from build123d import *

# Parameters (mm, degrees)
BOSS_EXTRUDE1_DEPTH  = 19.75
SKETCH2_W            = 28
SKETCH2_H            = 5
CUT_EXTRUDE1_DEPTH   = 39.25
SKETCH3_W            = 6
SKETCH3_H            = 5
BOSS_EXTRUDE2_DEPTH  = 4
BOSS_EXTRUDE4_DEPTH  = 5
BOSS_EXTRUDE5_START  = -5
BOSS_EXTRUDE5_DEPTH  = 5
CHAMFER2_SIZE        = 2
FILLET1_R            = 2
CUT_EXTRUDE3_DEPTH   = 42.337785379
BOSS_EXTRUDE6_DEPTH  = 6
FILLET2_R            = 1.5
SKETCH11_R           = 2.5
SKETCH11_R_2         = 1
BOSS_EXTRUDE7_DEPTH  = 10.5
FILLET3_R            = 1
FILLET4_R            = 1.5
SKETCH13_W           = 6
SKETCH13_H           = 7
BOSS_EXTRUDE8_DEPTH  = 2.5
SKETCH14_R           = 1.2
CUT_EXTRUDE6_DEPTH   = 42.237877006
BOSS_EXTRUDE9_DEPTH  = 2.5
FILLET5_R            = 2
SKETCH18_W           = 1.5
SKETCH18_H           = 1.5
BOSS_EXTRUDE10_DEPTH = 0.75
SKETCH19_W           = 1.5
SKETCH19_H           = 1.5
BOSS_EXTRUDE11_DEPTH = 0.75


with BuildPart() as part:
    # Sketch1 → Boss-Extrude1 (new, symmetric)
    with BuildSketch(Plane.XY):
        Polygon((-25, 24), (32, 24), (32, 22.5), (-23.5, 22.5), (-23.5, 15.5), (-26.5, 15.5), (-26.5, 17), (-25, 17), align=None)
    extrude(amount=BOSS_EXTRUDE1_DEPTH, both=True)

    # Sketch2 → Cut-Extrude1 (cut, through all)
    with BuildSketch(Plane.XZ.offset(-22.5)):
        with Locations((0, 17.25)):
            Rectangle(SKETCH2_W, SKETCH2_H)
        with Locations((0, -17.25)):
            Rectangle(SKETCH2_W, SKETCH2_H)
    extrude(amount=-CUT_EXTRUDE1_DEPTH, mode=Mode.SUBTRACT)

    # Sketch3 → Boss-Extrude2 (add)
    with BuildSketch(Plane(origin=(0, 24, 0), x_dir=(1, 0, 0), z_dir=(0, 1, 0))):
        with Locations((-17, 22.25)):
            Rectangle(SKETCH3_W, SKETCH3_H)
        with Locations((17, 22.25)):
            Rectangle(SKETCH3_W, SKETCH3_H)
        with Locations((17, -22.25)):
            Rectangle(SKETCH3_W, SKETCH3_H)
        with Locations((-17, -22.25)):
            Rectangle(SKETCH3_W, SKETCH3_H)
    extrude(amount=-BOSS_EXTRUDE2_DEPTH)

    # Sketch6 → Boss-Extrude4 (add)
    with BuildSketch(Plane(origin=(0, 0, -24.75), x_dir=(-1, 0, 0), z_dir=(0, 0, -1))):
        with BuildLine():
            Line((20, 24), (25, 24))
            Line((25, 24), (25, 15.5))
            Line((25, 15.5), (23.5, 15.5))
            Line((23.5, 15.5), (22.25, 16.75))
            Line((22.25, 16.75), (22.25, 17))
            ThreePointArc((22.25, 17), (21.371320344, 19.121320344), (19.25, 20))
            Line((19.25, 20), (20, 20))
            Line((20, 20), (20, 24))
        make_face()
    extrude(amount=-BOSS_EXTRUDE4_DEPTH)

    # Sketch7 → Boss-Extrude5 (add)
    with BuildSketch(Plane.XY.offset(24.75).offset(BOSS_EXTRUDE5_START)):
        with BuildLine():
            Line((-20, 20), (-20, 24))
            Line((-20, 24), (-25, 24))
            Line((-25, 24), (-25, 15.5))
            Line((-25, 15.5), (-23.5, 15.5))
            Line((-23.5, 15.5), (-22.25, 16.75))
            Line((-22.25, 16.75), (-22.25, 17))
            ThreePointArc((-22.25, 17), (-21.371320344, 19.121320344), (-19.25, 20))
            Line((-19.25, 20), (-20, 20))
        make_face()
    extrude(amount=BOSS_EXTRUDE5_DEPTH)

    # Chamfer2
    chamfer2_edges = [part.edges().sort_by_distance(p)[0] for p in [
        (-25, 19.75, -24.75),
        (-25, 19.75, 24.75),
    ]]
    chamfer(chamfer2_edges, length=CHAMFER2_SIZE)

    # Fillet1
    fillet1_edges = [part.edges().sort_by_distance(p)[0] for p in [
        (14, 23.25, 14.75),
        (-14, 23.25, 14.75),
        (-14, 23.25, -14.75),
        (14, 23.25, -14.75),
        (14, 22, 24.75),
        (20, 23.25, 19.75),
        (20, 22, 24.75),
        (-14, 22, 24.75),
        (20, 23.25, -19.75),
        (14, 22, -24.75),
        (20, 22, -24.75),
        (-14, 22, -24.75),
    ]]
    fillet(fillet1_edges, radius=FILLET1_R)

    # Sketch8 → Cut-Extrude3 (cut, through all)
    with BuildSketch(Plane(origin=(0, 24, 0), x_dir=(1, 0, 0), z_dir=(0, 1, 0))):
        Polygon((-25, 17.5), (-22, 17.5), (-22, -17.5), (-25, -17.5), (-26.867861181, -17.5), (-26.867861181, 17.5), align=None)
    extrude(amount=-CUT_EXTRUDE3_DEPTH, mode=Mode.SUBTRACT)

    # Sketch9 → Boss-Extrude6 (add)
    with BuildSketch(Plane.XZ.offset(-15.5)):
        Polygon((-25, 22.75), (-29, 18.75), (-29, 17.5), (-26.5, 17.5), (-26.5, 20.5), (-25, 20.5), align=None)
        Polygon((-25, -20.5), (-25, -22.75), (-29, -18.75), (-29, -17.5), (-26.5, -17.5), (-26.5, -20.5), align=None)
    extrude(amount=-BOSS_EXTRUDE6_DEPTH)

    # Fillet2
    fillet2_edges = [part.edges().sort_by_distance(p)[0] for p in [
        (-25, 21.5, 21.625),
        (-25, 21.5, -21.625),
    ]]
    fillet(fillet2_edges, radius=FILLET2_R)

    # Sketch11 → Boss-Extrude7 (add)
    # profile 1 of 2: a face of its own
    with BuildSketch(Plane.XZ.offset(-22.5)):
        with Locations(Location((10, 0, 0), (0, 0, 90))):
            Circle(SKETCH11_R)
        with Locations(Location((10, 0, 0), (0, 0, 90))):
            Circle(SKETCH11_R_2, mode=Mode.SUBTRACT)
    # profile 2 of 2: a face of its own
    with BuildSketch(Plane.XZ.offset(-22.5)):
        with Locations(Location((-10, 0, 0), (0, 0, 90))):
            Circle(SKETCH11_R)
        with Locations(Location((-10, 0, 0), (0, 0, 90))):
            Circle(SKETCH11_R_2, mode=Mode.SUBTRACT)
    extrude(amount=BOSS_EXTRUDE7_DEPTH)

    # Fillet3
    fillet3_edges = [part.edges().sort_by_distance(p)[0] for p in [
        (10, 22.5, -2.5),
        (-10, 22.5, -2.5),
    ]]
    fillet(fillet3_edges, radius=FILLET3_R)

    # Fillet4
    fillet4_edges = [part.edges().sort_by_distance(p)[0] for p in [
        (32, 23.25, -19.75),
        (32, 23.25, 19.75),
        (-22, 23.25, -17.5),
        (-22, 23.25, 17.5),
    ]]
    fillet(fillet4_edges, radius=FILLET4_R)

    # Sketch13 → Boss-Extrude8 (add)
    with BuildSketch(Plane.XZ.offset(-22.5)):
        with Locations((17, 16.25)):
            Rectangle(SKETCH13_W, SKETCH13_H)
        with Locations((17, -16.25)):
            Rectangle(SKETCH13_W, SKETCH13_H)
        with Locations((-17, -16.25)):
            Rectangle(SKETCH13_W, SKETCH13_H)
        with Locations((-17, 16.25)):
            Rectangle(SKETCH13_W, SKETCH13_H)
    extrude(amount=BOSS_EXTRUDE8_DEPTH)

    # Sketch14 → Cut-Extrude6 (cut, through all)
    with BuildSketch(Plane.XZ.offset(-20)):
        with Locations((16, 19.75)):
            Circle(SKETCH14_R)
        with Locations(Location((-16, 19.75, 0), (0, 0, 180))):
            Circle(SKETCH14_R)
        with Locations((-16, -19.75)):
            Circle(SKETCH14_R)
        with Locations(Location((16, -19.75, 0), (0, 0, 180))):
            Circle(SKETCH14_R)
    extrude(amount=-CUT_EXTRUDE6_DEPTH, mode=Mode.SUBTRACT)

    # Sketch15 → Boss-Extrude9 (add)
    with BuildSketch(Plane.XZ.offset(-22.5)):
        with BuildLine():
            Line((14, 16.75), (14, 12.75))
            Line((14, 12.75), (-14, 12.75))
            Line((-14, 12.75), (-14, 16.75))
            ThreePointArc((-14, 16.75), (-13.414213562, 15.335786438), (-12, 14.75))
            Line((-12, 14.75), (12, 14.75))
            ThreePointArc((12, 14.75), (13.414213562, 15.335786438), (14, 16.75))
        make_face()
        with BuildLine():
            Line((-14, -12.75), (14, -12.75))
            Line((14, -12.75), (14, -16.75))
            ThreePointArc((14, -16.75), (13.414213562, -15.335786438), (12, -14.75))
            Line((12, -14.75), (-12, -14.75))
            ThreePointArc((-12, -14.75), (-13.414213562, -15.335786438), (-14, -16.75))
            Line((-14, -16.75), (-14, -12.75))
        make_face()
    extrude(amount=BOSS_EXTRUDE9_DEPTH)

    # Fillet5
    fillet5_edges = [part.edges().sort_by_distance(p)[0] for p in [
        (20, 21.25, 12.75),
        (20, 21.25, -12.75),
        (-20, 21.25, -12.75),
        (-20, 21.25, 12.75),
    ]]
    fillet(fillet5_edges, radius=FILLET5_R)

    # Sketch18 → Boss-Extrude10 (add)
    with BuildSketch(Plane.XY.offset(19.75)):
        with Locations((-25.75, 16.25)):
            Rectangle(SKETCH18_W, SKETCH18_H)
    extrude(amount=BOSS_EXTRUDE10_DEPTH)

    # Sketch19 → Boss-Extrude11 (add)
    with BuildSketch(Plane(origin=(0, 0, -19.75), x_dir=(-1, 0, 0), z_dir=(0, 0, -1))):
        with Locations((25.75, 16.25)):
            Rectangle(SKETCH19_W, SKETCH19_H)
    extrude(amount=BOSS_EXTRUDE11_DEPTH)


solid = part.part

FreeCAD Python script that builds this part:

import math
import FreeCAD as App
import Part
import Sketcher
Q = App.Units.Quantity


def edges_at(feature, points):
    """Names of the edges that pass closest to the given points."""
    edges = feature.Shape.Edges
    near = lambda p: min(range(len(edges)), key=lambda i: edges[i].distToShape(Part.Vertex(*p))[0])
    return sorted({f"Edge{near(p) + 1}" for p in points})

doc = App.newDocument("Part")
params = doc.addObject("Spreadsheet::Sheet", "Params")
for row, (alias, value) in enumerate([
    ("sketch1_width", "57 mm"),
    ("sketch1_width2", "3 mm"),
    ("sketch1_height", "7 mm"),
    ("sketch1_width3", "1.5 mm"),
    ("pad1_length", "39.5 mm"),
    ("sketch2_width", "28 mm"),
    ("sketch2_height", "5 mm"),
    ("sketch3_width", "6 mm"),
    ("sketch3_height", "5 mm"),
    ("pad2_length", "4 mm"),
    ("sketch4_radius", "3 mm"),
    ("sketch4_width", "5 mm"),
    ("sketch4_height", "4 mm"),
    ("sketch4_width2", "1.5 mm"),
    ("sketch4_height2", "8.5 mm"),
    ("pad3_length", "5 mm"),
    ("sketch5_radius", "3 mm"),
    ("sketch5_width", "5 mm"),
    ("sketch5_height", "4 mm"),
    ("sketch5_width2", "1.5 mm"),
    ("sketch5_height2", "8.5 mm"),
    ("pad4_length", "5 mm"),
    ("chamfer_size", "2 mm"),
    ("fillet_radius", "2 mm"),
    ("sketch6_height", "35 mm"),
    ("sketch7_height", "3 mm"),
    ("sketch7_width", "2.5 mm"),
    ("sketch7_width2", "1.5 mm"),
    ("sketch7_height2", "1.25 mm"),
    ("pad5_length", "6 mm"),
    ("fillet2_radius", "1.5 mm"),
    ("sketch8_diameter", "5 mm"),
    ("sketch8_diameter2", "2 mm"),
    ("pad6_length", "10.5 mm"),
    ("fillet3_radius", "1 mm"),
    ("fillet4_radius", "1.5 mm"),
    ("sketch9_width", "6 mm"),
    ("sketch9_height", "7 mm"),
    ("pad7_length", "2.5 mm"),
    ("sketch10_diameter", "2.4 mm"),
    ("sketch11_radius", "2 mm"),
    ("sketch11_width", "24 mm"),
    ("sketch11_height", "4 mm"),
    ("pad8_length", "2.5 mm"),
    ("fillet5_radius", "2 mm"),
    ("sketch12_width", "1.5 mm"),
    ("pad9_length", "0.75 mm"),
    ("sketch13_width", "1.5 mm"),
    ("pad10_length", "0.75 mm"),
], start=1):
    params.set(f"A{row}", alias)
    params.set(f"B{row}", "=" + value)
    params.setAlias(f"B{row}", alias)

body = doc.addObject("PartDesign::Body", "Body")

sketch1 = body.newObject("Sketcher::SketchObject", "Sketch")
sketch1.AttachmentSupport = (doc.getObject("XY_Plane"), [""])
sketch1.MapMode = "FlatFace"
sketch1.addGeometry(Part.LineSegment(App.Vector(32, 24, 0), App.Vector(-25, 24, 0)), False)
sketch1.addGeometry(Part.LineSegment(App.Vector(-25, 24, 0), App.Vector(-25, 17, 0)), False)
sketch1.addGeometry(Part.LineSegment(App.Vector(-25, 17, 0), App.Vector(-26.5, 17, 0)), False)
sketch1.addGeometry(Part.LineSegment(App.Vector(-26.5, 17, 0), App.Vector(-26.5, 15.5, 0)), False)
sketch1.addGeometry(Part.LineSegment(App.Vector(-26.5, 15.5, 0), App.Vector(-23.5, 15.5, 0)), False)
sketch1.addGeometry(Part.LineSegment(App.Vector(-23.5, 15.5, 0), App.Vector(-23.5, 22.5, 0)), False)
sketch1.addGeometry(Part.LineSegment(App.Vector(-23.5, 22.5, 0), App.Vector(32, 22.5, 0)), False)
sketch1.addGeometry(Part.LineSegment(App.Vector(32, 22.5, 0), App.Vector(32, 24, 0)), False)
sketch1.addConstraint(Sketcher.Constraint("Coincident", 0, 2, 1, 1))
sketch1.addConstraint(Sketcher.Constraint("Coincident", 1, 2, 2, 1))
sketch1.addConstraint(Sketcher.Constraint("Coincident", 2, 2, 3, 1))
sketch1.addConstraint(Sketcher.Constraint("Coincident", 3, 2, 4, 1))
sketch1.addConstraint(Sketcher.Constraint("Coincident", 4, 2, 5, 1))
sketch1.addConstraint(Sketcher.Constraint("Coincident", 5, 2, 6, 1))
sketch1.addConstraint(Sketcher.Constraint("Coincident", 6, 2, 7, 1))
sketch1.addConstraint(Sketcher.Constraint("Coincident", 7, 2, 0, 1))
sketch1.addConstraint(Sketcher.Constraint("Horizontal", 0))
sketch1.addConstraint(Sketcher.Constraint("Vertical", 1))
sketch1.addConstraint(Sketcher.Constraint("Horizontal", 2))
sketch1.addConstraint(Sketcher.Constraint("Vertical", 3))
sketch1.addConstraint(Sketcher.Constraint("Horizontal", 4))
sketch1.addConstraint(Sketcher.Constraint("Vertical", 5))
sketch1.addConstraint(Sketcher.Constraint("Horizontal", 6))
sketch1.addConstraint(Sketcher.Constraint("Vertical", 7))
sketch1.addConstraint(Sketcher.Constraint("Equal", 2, 3))
sketch1.addConstraint(Sketcher.Constraint("Equal", 1, 5))
sketch1.addConstraint(Sketcher.Constraint("DistanceX", 0, 2, 0, 1, Q("57 mm")))
sketch1.addConstraint(Sketcher.Constraint("DistanceX", 4, 1, 4, 2, Q("3 mm")))
sketch1.addConstraint(Sketcher.Constraint("DistanceY", 1, 2, 1, 1, Q("7 mm")))
sketch1.addConstraint(Sketcher.Constraint("DistanceX", 2, 2, 2, 1, Q("1.5 mm")))
sketch1.addConstraint(Sketcher.Constraint("DistanceX", 0, 2, -1, 1, Q("25 mm")))
sketch1.addConstraint(Sketcher.Constraint("DistanceY", -1, 1, 0, 2, Q("24 mm")))
sketch1.setExpression("Constraints[18]", "Params.sketch1_width")
sketch1.setExpression("Constraints[19]", "Params.sketch1_width2")
sketch1.setExpression("Constraints[20]", "Params.sketch1_height")
sketch1.setExpression("Constraints[21]", "Params.sketch1_width3")
pad1 = body.newObject("PartDesign::Pad", "Pad")
pad1.Profile = sketch1
pad1.setExpression("Length", "Params.pad1_length")
pad1.Midplane = True

sketch2 = body.newObject("Sketcher::SketchObject", "Sketch001")
sketch2.AttachmentSupport = (doc.getObject("XZ_Plane"), [""])
sketch2.MapMode = "FlatFace"
sketch2.AttachmentOffset = App.Placement(App.Vector(0, 0, -22.5), App.Rotation())
sketch2.addGeometry(Part.LineSegment(App.Vector(-14, 19.75, 0), App.Vector(-14, 14.75, 0)), False)
sketch2.addGeometry(Part.LineSegment(App.Vector(-14, 14.75, 0), App.Vector(14, 14.75, 0)), False)
sketch2.addGeometry(Part.LineSegment(App.Vector(14, 14.75, 0), App.Vector(14, 19.75, 0)), False)
sketch2.addGeometry(Part.LineSegment(App.Vector(14, 19.75, 0), App.Vector(-14, 19.75, 0)), False)
sketch2.addGeometry(Part.LineSegment(App.Vector(-14, -14.75, 0), App.Vector(-14, -19.75, 0)), False)
sketch2.addGeometry(Part.LineSegment(App.Vector(-14, -19.75, 0), App.Vector(14, -19.75, 0)), False)
sketch2.addGeometry(Part.LineSegment(App.Vector(14, -19.75, 0), App.Vector(14, -14.75, 0)), False)
sketch2.addGeometry(Part.LineSegment(App.Vector(14, -14.75, 0), App.Vector(-14, -14.75, 0)), False)
sketch2.addConstraint(Sketcher.Constraint("Coincident", 0, 2, 1, 1))
sketch2.addConstraint(Sketcher.Constraint("Coincident", 1, 2, 2, 1))
sketch2.addConstraint(Sketcher.Constraint("Coincident", 2, 2, 3, 1))
sketch2.addConstraint(Sketcher.Constraint("Coincident", 3, 2, 0, 1))
sketch2.addConstraint(Sketcher.Constraint("Coincident", 4, 2, 5, 1))
sketch2.addConstraint(Sketcher.Constraint("Coincident", 5, 2, 6, 1))
sketch2.addConstraint(Sketcher.Constraint("Coincident", 6, 2, 7, 1))
sketch2.addConstraint(Sketcher.Constraint("Coincident", 7, 2, 4, 1))
sketch2.addConstraint(Sketcher.Constraint("Vertical", 0))
sketch2.addConstraint(Sketcher.Constraint("Horizontal", 1))
sketch2.addConstraint(Sketcher.Constraint("Vertical", 2))
sketch2.addConstraint(Sketcher.Constraint("Horizontal", 3))
sketch2.addConstraint(Sketcher.Constraint("Vertical", 4))
sketch2.addConstraint(Sketcher.Constraint("Horizontal", 5))
sketch2.addConstraint(Sketcher.Constraint("Vertical", 6))
sketch2.addConstraint(Sketcher.Constraint("Horizontal", 7))
sketch2.addConstraint(Sketcher.Constraint("Symmetric", 2, 2, 4, 2, -1, 1))
sketch2.addConstraint(Sketcher.Constraint("Symmetric", 0, 2, 6, 2, -1, 1))
sketch2.addConstraint(Sketcher.Constraint("Vertical", 3, 2, 4, 2))
sketch2.addConstraint(Sketcher.Constraint("DistanceX", 1, 1, 1, 2, Q("28 mm")))
sketch2.addConstraint(Sketcher.Constraint("DistanceY", 0, 2, 0, 1, Q("5 mm")))
sketch2.addConstraint(Sketcher.Constraint("DistanceY", 4, 2, 0, 2, Q("34.5 mm")))
sketch2.setExpression("Constraints[19]", "Params.sketch2_width")
sketch2.setExpression("Constraints[20]", "Params.sketch2_height")
pocket1 = body.newObject("PartDesign::Pocket", "Pocket")
pocket1.Profile = sketch2
pocket1.Type = "ThroughAll"

sketch3 = body.newObject("Sketcher::SketchObject", "Sketch002")
sketch3.AttachmentSupport = (doc.getObject("XZ_Plane"), [""])
sketch3.MapMode = "FlatFace"
sketch3.AttachmentOffset = App.Placement(App.Vector(0, 0, -24), App.Rotation())
sketch3.addGeometry(Part.LineSegment(App.Vector(-20, -24.75, 0), App.Vector(-20, -19.75, 0)), False)
sketch3.addGeometry(Part.LineSegment(App.Vector(-20, -19.75, 0), App.Vector(-14, -19.75, 0)), False)
sketch3.addGeometry(Part.LineSegment(App.Vector(-14, -19.75, 0), App.Vector(-14, -24.75, 0)), False)
sketch3.addGeometry(Part.LineSegment(App.Vector(-14, -24.75, 0), App.Vector(-20, -24.75, 0)), False)
sketch3.addGeometry(Part.LineSegment(App.Vector(14, -24.75, 0), App.Vector(14, -19.75, 0)), False)
sketch3.addGeometry(Part.LineSegment(App.Vector(14, -19.75, 0), App.Vector(20, -19.75, 0)), False)
sketch3.addGeometry(Part.LineSegment(App.Vector(20, -19.75, 0), App.Vector(20, -24.75, 0)), False)
sketch3.addGeometry(Part.LineSegment(App.Vector(20, -24.75, 0), App.Vector(14, -24.75, 0)), False)
sketch3.addGeometry(Part.LineSegment(App.Vector(14, 19.75, 0), App.Vector(14, 24.75, 0)), False)
sketch3.addGeometry(Part.LineSegment(App.Vector(14, 24.75, 0), App.Vector(20, 24.75, 0)), False)
sketch3.addGeometry(Part.LineSegment(App.Vector(20, 24.75, 0), App.Vector(20, 19.75, 0)), False)
sketch3.addGeometry(Part.LineSegment(App.Vector(20, 19.75, 0), App.Vector(14, 19.75, 0)), False)
sketch3.addGeometry(Part.LineSegment(App.Vector(-20, 19.75, 0), App.Vector(-20, 24.75, 0)), False)
sketch3.addGeometry(Part.LineSegment(App.Vector(-20, 24.75, 0), App.Vector(-14, 24.75, 0)), False)
sketch3.addGeometry(Part.LineSegment(App.Vector(-14, 24.75, 0), App.Vector(-14, 19.75, 0)), False)
sketch3.addGeometry(Part.LineSegment(App.Vector(-14, 19.75, 0), App.Vector(-20, 19.75, 0)), False)
sketch3.addConstraint(Sketcher.Constraint("Coincident", 0, 2, 1, 1))
sketch3.addConstraint(Sketcher.Constraint("Coincident", 1, 2, 2, 1))
sketch3.addConstraint(Sketcher.Constraint("Coincident", 2, 2, 3, 1))
sketch3.addConstraint(Sketcher.Constraint("Coincident", 3, 2, 0, 1))
sketch3.addConstraint(Sketcher.Constraint("Coincident", 4, 2, 5, 1))
sketch3.addConstraint(Sketcher.Constraint("Coincident", 5, 2, 6, 1))
sketch3.addConstraint(Sketcher.Constraint("Coincident", 6, 2, 7, 1))
sketch3.addConstraint(Sketcher.Constraint("Coincident", 7, 2, 4, 1))
sketch3.addConstraint(Sketcher.Constraint("Coincident", 8, 2, 9, 1))
sketch3.addConstraint(Sketcher.Constraint("Coincident", 9, 2, 10, 1))
sketch3.addConstraint(Sketcher.Constraint("Coincident", 10, 2, 11, 1))
sketch3.addConstraint(Sketcher.Constraint("Coincident", 11, 2, 8, 1))
sketch3.addConstraint(Sketcher.Constraint("Coincident", 12, 2, 13, 1))
sketch3.addConstraint(Sketcher.Constraint("Coincident", 13, 2, 14, 1))
sketch3.addConstraint(Sketcher.Constraint("Coincident", 14, 2, 15, 1))
sketch3.addConstraint(Sketcher.Constraint("Coincident", 15, 2, 12, 1))
sketch3.addConstraint(Sketcher.Constraint("Vertical", 0))
sketch3.addConstraint(Sketcher.Constraint("Horizontal", 1))
sketch3.addConstraint(Sketcher.Constraint("Vertical", 2))
sketch3.addConstraint(Sketcher.Constraint("Horizontal", 3))
sketch3.addConstraint(Sketcher.Constraint("Vertical", 4))
sketch3.addConstraint(Sketcher.Constraint("Horizontal", 5))
sketch3.addConstraint(Sketcher.Constraint("Vertical", 6))
sketch3.addConstraint(Sketcher.Constraint("Horizontal", 7))
sketch3.addConstraint(Sketcher.Constraint("Vertical", 8))
sketch3.addConstraint(Sketcher.Constraint("Horizontal", 9))
sketch3.addConstraint(Sketcher.Constraint("Vertical", 10))
sketch3.addConstraint(Sketcher.Constraint("Horizontal", 11))
sketch3.addConstraint(Sketcher.Constraint("Vertical", 12))
sketch3.addConstraint(Sketcher.Constraint("Horizontal", 13))
sketch3.addConstraint(Sketcher.Constraint("Vertical", 14))
sketch3.addConstraint(Sketcher.Constraint("Horizontal", 15))
sketch3.addConstraint(Sketcher.Constraint("Symmetric", 2, 2, 8, 2, -1, 1))
sketch3.addConstraint(Sketcher.Constraint("Symmetric", 0, 2, 10, 2, -1, 1))
sketch3.addConstraint(Sketcher.Constraint("Symmetric", 6, 2, 12, 2, -1, 1))
sketch3.addConstraint(Sketcher.Constraint("Symmetric", 4, 2, 14, 2, -1, 1))
sketch3.addConstraint(Sketcher.Constraint("Symmetric", 1, 2, 4, 2, -2))
sketch3.addConstraint(Sketcher.Constraint("Symmetric", 3, 2, 6, 2, -2))
sketch3.addConstraint(Sketcher.Constraint("DistanceX", 1, 1, 1, 2, Q("6 mm")))
sketch3.addConstraint(Sketcher.Constraint("DistanceY", 0, 1, 0, 2, Q("5 mm")))
sketch3.addConstraint(Sketcher.Constraint("DistanceX", 0, 2, -1, 1, Q("20 mm")))
sketch3.addConstraint(Sketcher.Constraint("DistanceY", 4, 2, 8, 2, Q("44.5 mm")))
sketch3.setExpression("Constraints[38]", "Params.sketch3_width")
sketch3.setExpression("Constraints[39]", "Params.sketch3_height")
pad2 = body.newObject("PartDesign::Pad", "Pad001")
pad2.Profile = sketch3
pad2.setExpression("Length", "Params.pad2_length")

sketch4 = body.newObject("Sketcher::SketchObject", "Sketch003")
sketch4.AttachmentSupport = (doc.getObject("XY_Plane"), [""])
sketch4.MapMode = "FlatFace"
sketch4.AttachmentOffset = App.Placement(App.Vector(0, 0, -24.75), App.Rotation())
sketch4.addGeometry(Part.LineSegment(App.Vector(-25, 24, 0), App.Vector(-20, 24, 0)), False)
sketch4.addGeometry(Part.LineSegment(App.Vector(-20, 24, 0), App.Vector(-20, 20, 0)), False)
sketch4.addGeometry(Part.LineSegment(App.Vector(-20, 20, 0), App.Vector(-19.25, 20, 0)), False)
sketch4.addGeometry(Part.ArcOfCircle(Part.Circle(App.Vector(-19.25, 17, 0), App.Vector(0, 0, 1), 3), math.radians(90), math.radians(180)), False)
sketch4.addGeometry(Part.LineSegment(App.Vector(-22.25, 17, 0), App.Vector(-22.25, 16.75, 0)), False)
sketch4.addGeometry(Part.LineSegment(App.Vector(-22.25, 16.75, 0), App.Vector(-23.5, 15.5, 0)), False)
sketch4.addGeometry(Part.LineSegment(App.Vector(-23.5, 15.5, 0), App.Vector(-25, 15.5, 0)), False)
sketch4.addGeometry(Part.LineSegment(App.Vector(-25, 15.5, 0), App.Vector(-25, 24, 0)), False)
sketch4.addConstraint(Sketcher.Constraint("Coincident", 0, 2, 1, 1))
sketch4.addConstraint(Sketcher.Constraint("Coincident", 1, 2, 2, 1))
sketch4.addConstraint(Sketcher.Constraint("Tangent", 2, 2, 3, 1))
sketch4.addConstraint(Sketcher.Constraint("Tangent", 3, 2, 4, 1))
sketch4.addConstraint(Sketcher.Constraint("Coincident", 4, 2, 5, 1))
sketch4.addConstraint(Sketcher.Constraint("Coincident", 5, 2, 6, 1))
sketch4.addConstraint(Sketcher.Constraint("Coincident", 6, 2, 7, 1))
sketch4.addConstraint(Sketcher.Constraint("Coincident", 7, 2, 0, 1))
sketch4.addConstraint(Sketcher.Constraint("Horizontal", 0))
sketch4.addConstraint(Sketcher.Constraint("Vertical", 1))
sketch4.addConstraint(Sketcher.Constraint("Horizontal", 2))
sketch4.addConstraint(Sketcher.Constraint("Vertical", 4))
sketch4.addConstraint(Sketcher.Constraint("Horizontal", 6))
sketch4.addConstraint(Sketcher.Constraint("Vertical", 7))
sketch4.addConstraint(Sketcher.Constraint("Radius", 3, Q("3 mm")))
sketch4.addConstraint(Sketcher.Constraint("DistanceX", 0, 1, 0, 2, Q("5 mm")))
sketch4.addConstraint(Sketcher.Constraint("DistanceY", 1, 2, 1, 1, Q("4 mm")))
sketch4.addConstraint(Sketcher.Constraint("Angle", 5, Q("-135 deg")))
sketch4.addConstraint(Sketcher.Constraint("DistanceX", 6, 2, 6, 1, Q("1.5 mm")))
sketch4.addConstraint(Sketcher.Constraint("DistanceY", 7, 1, 7, 2, Q("8.5 mm")))
sketch4.addConstraint(Sketcher.Constraint("DistanceY", -1, 1, 3, 3, Q("17 mm")))
sketch4.addConstraint(Sketcher.Constraint("DistanceX", 0, 2, -1, 1, Q("20 mm")))
sketch4.addConstraint(Sketcher.Constraint("DistanceX", 2, 1, 2, 2, Q("0.75 mm")))
sketch4.setExpression("Constraints[14]", "Params.sketch4_radius")
sketch4.setExpression("Constraints[15]", "Params.sketch4_width")
sketch4.setExpression("Constraints[16]", "Params.sketch4_height")
sketch4.setExpression("Constraints[18]", "Params.sketch4_width2")
sketch4.setExpression("Constraints[19]", "Params.sketch4_height2")
pad3 = body.newObject("PartDesign::Pad", "Pad002")
pad3.Profile = sketch4
pad3.setExpression("Length", "Params.pad3_length")

sketch5 = body.newObject("Sketcher::SketchObject", "Sketch004")
sketch5.AttachmentSupport = (doc.getObject("XY_Plane"), [""])
sketch5.MapMode = "FlatFace"
sketch5.AttachmentOffset = App.Placement(App.Vector(0, 0, 19.75), App.Rotation())
sketch5.addGeometry(Part.LineSegment(App.Vector(-20, 20, 0), App.Vector(-20, 24, 0)), False)
sketch5.addGeometry(Part.LineSegment(App.Vector(-20, 24, 0), App.Vector(-25, 24, 0)), False)
sketch5.addGeometry(Part.LineSegment(App.Vector(-25, 24, 0), App.Vector(-25, 15.5, 0)), False)
sketch5.addGeometry(Part.LineSegment(App.Vector(-25, 15.5, 0), App.Vector(-23.5, 15.5, 0)), False)
sketch5.addGeometry(Part.LineSegment(App.Vector(-23.5, 15.5, 0), App.Vector(-22.25, 16.75, 0)), False)
sketch5.addGeometry(Part.LineSegment(App.Vector(-22.25, 16.75, 0), App.Vector(-22.25, 17, 0)), False)
sketch5.addGeometry(Part.ArcOfCircle(Part.Circle(App.Vector(-19.25, 17, 0), App.Vector(0, 0, 1), 3), math.radians(90), math.radians(180)), False)
sketch5.addGeometry(Part.LineSegment(App.Vector(-19.25, 20, 0), App.Vector(-20, 20, 0)), False)
sketch5.addConstraint(Sketcher.Constraint("Coincident", 0, 2, 1, 1))
sketch5.addConstraint(Sketcher.Constraint("Coincident", 1, 2, 2, 1))
sketch5.addConstraint(Sketcher.Constraint("Coincident", 2, 2, 3, 1))
sketch5.addConstraint(Sketcher.Constraint("Coincident", 3, 2, 4, 1))
sketch5.addConstraint(Sketcher.Constraint("Coincident", 4, 2, 5, 1))
sketch5.addConstraint(Sketcher.Constraint("Tangent", 5, 2, 6, 2))
sketch5.addConstraint(Sketcher.Constraint("Tangent", 6, 1, 7, 1))
sketch5.addConstraint(Sketcher.Constraint("Coincident", 7, 2, 0, 1))
sketch5.addConstraint(Sketcher.Constraint("Vertical", 0))
sketch5.addConstraint(Sketcher.Constraint("Horizontal", 1))
sketch5.addConstraint(Sketcher.Constraint("Vertical", 2))
sketch5.addConstraint(Sketcher.Constraint("Horizontal", 3))
sketch5.addConstraint(Sketcher.Constraint("Vertical", 5))
sketch5.addConstraint(Sketcher.Constraint("Horizontal", 7))
sketch5.addConstraint(Sketcher.Constraint("Radius", 6, Q("3 mm")))
sketch5.addConstraint(Sketcher.Constraint("DistanceX", 1, 2, 1, 1, Q("5 mm")))
sketch5.addConstraint(Sketcher.Constraint("DistanceY", 0, 1, 0, 2, Q("4 mm")))
sketch5.addConstraint(Sketcher.Constraint("Angle", 4, Q("45 deg")))
sketch5.addConstraint(Sketcher.Constraint("DistanceX", 3, 1, 3, 2, Q("1.5 mm")))
sketch5.addConstraint(Sketcher.Constraint("DistanceY", 2, 2, 2, 1, Q("8.5 mm")))
sketch5.addConstraint(Sketcher.Constraint("DistanceY", -1, 1, 6, 3, Q("17 mm")))
sketch5.addConstraint(Sketcher.Constraint("DistanceX", 0, 2, -1, 1, Q("20 mm")))
sketch5.addConstraint(Sketcher.Constraint("DistanceX", 7, 2, 7, 1, Q("0.75 mm")))
sketch5.setExpression("Constraints[14]", "Params.sketch5_radius")
sketch5.setExpression("Constraints[15]", "Params.sketch5_width")
sketch5.setExpression("Constraints[16]", "Params.sketch5_height")
sketch5.setExpression("Constraints[18]", "Params.sketch5_width2")
sketch5.setExpression("Constraints[19]", "Params.sketch5_height2")
pad4 = body.newObject("PartDesign::Pad", "Pad003")
pad4.Profile = sketch5
pad4.setExpression("Length", "Params.pad4_length")
doc.recompute()

chamfer = body.newObject("PartDesign::Chamfer", "Chamfer")
chamfer.Base = (pad4, edges_at(pad4, [(-25, 19.75, -24.75), (-25, 19.75, 24.75)]))
chamfer.setExpression("Size", "Params.chamfer_size")
doc.recompute()

fillet = body.newObject("PartDesign::Fillet", "Fillet")
fillet.Base = (chamfer, edges_at(chamfer, [
    (14, 23.25, 14.75),
    (-14, 23.25, 14.75),
    (-14, 23.25, -14.75),
    (14, 23.25, -14.75),
    (14, 22, 24.75),
    (20, 23.25, 19.75),
    (20, 22, 24.75),
    (-14, 22, 24.75),
    (20, 23.25, -19.75),
    (14, 22, -24.75),
    (20, 22, -24.75),
    (-14, 22, -24.75),
]))
fillet.setExpression("Radius", "Params.fillet_radius")

sketch6 = body.newObject("Sketcher::SketchObject", "Sketch005")
sketch6.AttachmentSupport = (doc.getObject("XZ_Plane"), [""])
sketch6.MapMode = "FlatFace"
sketch6.AttachmentOffset = App.Placement(App.Vector(0, 0, -24), App.Rotation())
sketch6.addGeometry(Part.LineSegment(App.Vector(-22, -17.5, 0), App.Vector(-26.867861, -17.5, 0)), False)
sketch6.addGeometry(Part.LineSegment(App.Vector(-26.867861, -17.5, 0), App.Vector(-26.867861, 17.5, 0)), False)
sketch6.addGeometry(Part.LineSegment(App.Vector(-26.867861, 17.5, 0), App.Vector(-22, 17.5, 0)), False)
sketch6.addGeometry(Part.LineSegment(App.Vector(-22, 17.5, 0), App.Vector(-22, -17.5, 0)), False)
sketch6.addConstraint(Sketcher.Constraint("Coincident", 0, 2, 1, 1))
sketch6.addConstraint(Sketcher.Constraint("Coincident", 1, 2, 2, 1))
sketch6.addConstraint(Sketcher.Constraint("Coincident", 2, 2, 3, 1))
sketch6.addConstraint(Sketcher.Constraint("Coincident", 3, 2, 0, 1))
sketch6.addConstraint(Sketcher.Constraint("Horizontal", 0))
sketch6.addConstraint(Sketcher.Constraint("Vertical", 1))
sketch6.addConstraint(Sketcher.Constraint("Horizontal", 2))
sketch6.addConstraint(Sketcher.Constraint("Vertical", 3))
sketch6.addConstraint(Sketcher.Constraint("DistanceY", 1, 1, 1, 2, Q("35 mm")))
sketch6.addConstraint(Sketcher.Constraint("DistanceX", 2, 2, -1, 1, Q("22 mm")))
sketch6.addConstraint(Sketcher.Constraint("DistanceY", 0, 2, -1, 1, Q("17.5 mm")))
sketch6.addConstraint(Sketcher.Constraint("DistanceX", 0, 2, 0, 1, Q("4.867861 mm")))
sketch6.setExpression("Constraints[8]", "Params.sketch6_height")
pocket2 = body.newObject("PartDesign::Pocket", "Pocket001")
pocket2.Profile = sketch6
pocket2.Type = "ThroughAll"
pocket2.Reversed = True

sketch7 = body.newObject("Sketcher::SketchObject", "Sketch006")
sketch7.AttachmentSupport = (doc.getObject("XZ_Plane"), [""])
sketch7.MapMode = "FlatFace"
sketch7.AttachmentOffset = App.Placement(App.Vector(0, 0, -15.5), App.Rotation())
sketch7.addGeometry(Part.LineSegment(App.Vector(-25, 22.75, 0), App.Vector(-29, 18.75, 0)), False)
sketch7.addGeometry(Part.LineSegment(App.Vector(-29, 18.75, 0), App.Vector(-29, 17.5, 0)), False)
sketch7.addGeometry(Part.LineSegment(App.Vector(-29, 17.5, 0), App.Vector(-26.5, 17.5, 0)), False)
sketch7.addGeometry(Part.LineSegment(App.Vector(-26.5, 17.5, 0), App.Vector(-26.5, 20.5, 0)), False)
sketch7.addGeometry(Part.LineSegment(App.Vector(-26.5, 20.5, 0), App.Vector(-25, 20.5, 0)), False)
sketch7.addGeometry(Part.LineSegment(App.Vector(-25, 20.5, 0), App.Vector(-25, 22.75, 0)), False)
sketch7.addGeometry(Part.LineSegment(App.Vector(-25, -22.75, 0), App.Vector(-25, -20.5, 0)), False)
sketch7.addGeometry(Part.LineSegment(App.Vector(-25, -20.5, 0), App.Vector(-26.5, -20.5, 0)), False)
sketch7.addGeometry(Part.LineSegment(App.Vector(-26.5, -20.5, 0), App.Vector(-26.5, -17.5, 0)), False)
sketch7.addGeometry(Part.LineSegment(App.Vector(-26.5, -17.5, 0), App.Vector(-29, -17.5, 0)), False)
sketch7.addGeometry(Part.LineSegment(App.Vector(-29, -17.5, 0), App.Vector(-29, -18.75, 0)), False)
sketch7.addGeometry(Part.LineSegment(App.Vector(-29, -18.75, 0), App.Vector(-25, -22.75, 0)), False)
sketch7.addConstraint(Sketcher.Constraint("Coincident", 0, 2, 1, 1))
sketch7.addConstraint(Sketcher.Constraint("Coincident", 1, 2, 2, 1))
sketch7.addConstraint(Sketcher.Constraint("Coincident", 2, 2, 3, 1))
sketch7.addConstraint(Sketcher.Constraint("Coincident", 3, 2, 4, 1))
sketch7.addConstraint(Sketcher.Constraint("Coincident", 4, 2, 5, 1))
sketch7.addConstraint(Sketcher.Constraint("Coincident", 5, 2, 0, 1))
sketch7.addConstraint(Sketcher.Constraint("Coincident", 6, 2, 7, 1))
sketch7.addConstraint(Sketcher.Constraint("Coincident", 7, 2, 8, 1))
sketch7.addConstraint(Sketcher.Constraint("Coincident", 8, 2, 9, 1))
sketch7.addConstraint(Sketcher.Constraint("Coincident", 9, 2, 10, 1))
sketch7.addConstraint(Sketcher.Constraint("Coincident", 10, 2, 11, 1))
sketch7.addConstraint(Sketcher.Constraint("Coincident", 11, 2, 6, 1))
sketch7.addConstraint(Sketcher.Constraint("Vertical", 1))
sketch7.addConstraint(Sketcher.Constraint("Horizontal", 2))
sketch7.addConstraint(Sketcher.Constraint("Vertical", 3))
sketch7.addConstraint(Sketcher.Constraint("Horizontal", 4))
sketch7.addConstraint(Sketcher.Constraint("Vertical", 5))
sketch7.addConstraint(Sketcher.Constraint("Vertical", 6))
sketch7.addConstraint(Sketcher.Constraint("Horizontal", 7))
sketch7.addConstraint(Sketcher.Constraint("Vertical", 8))
sketch7.addConstraint(Sketcher.Constraint("Horizontal", 9))
sketch7.addConstraint(Sketcher.Constraint("Vertical", 10))
sketch7.addConstraint(Sketcher.Constraint("Symmetric", 4, 2, 6, 2, -1))
sketch7.addConstraint(Sketcher.Constraint("Symmetric", 2, 2, 8, 2, -1))
sketch7.addConstraint(Sketcher.Constraint("Symmetric", 0, 2, 10, 2, -1))
sketch7.addConstraint(Sketcher.Constraint("Perpendicular", 0, 11))
sketch7.addConstraint(Sketcher.Constraint("Equal", 5, 6))
sketch7.addConstraint(Sketcher.Constraint("DistanceY", 3, 1, 3, 2, Q("3 mm")))
sketch7.addConstraint(Sketcher.Constraint("DistanceX", 2, 1, 2, 2, Q("2.5 mm")))
sketch7.addConstraint(Sketcher.Constraint("DistanceX", 4, 1, 4, 2, Q("1.5 mm")))
sketch7.addConstraint(Sketcher.Constraint("DistanceX", 0, 2, -1, 1, Q("29 mm")))
sketch7.addConstraint(Sketcher.Constraint("DistanceY", 6, 2, 2, 2, Q("38 mm")))
sketch7.addConstraint(Sketcher.Constraint("DistanceY", 1, 2, 1, 1, Q("1.25 mm")))
sketch7.setExpression("Constraints[27]", "Params.sketch7_height")
sketch7.setExpression("Constraints[28]", "Params.sketch7_width")
sketch7.setExpression("Constraints[29]", "Params.sketch7_width2")
sketch7.setExpression("Constraints[32]", "Params.sketch7_height2")
pad5 = body.newObject("PartDesign::Pad", "Pad004")
pad5.Profile = sketch7
pad5.setExpression("Length", "Params.pad5_length")
pad5.Reversed = True
doc.recompute()

fillet2 = body.newObject("PartDesign::Fillet", "Fillet001")
fillet2.Base = (pad5, edges_at(pad5, [(-25, 21.5, 21.625), (-25, 21.5, -21.625)]))
fillet2.setExpression("Radius", "Params.fillet2_radius")

sketch8 = body.newObject("Sketcher::SketchObject", "Sketch007")
sketch8.AttachmentSupport = (doc.getObject("XZ_Plane"), [""])
sketch8.MapMode = "FlatFace"
sketch8.AttachmentOffset = App.Placement(App.Vector(0, 0, -22.5), App.Rotation())
sketch8.addGeometry(Part.Circle(App.Vector(10, 0, 0), App.Vector(0, 0, 1), 2.5), False)
sketch8.addGeometry(Part.Circle(App.Vector(10, 0, 0), App.Vector(0, 0, 1), 1), False)
sketch8.addGeometry(Part.Circle(App.Vector(-10, 0, 0), App.Vector(0, 0, 1), 2.5), False)
sketch8.addGeometry(Part.Circle(App.Vector(-10, 0, 0), App.Vector(0, 0, 1), 1), False)
sketch8.addConstraint(Sketcher.Constraint("Coincident", 1, 3, 0, 3))
sketch8.addConstraint(Sketcher.Constraint("Coincident", 3, 3, 2, 3))
sketch8.addConstraint(Sketcher.Constraint("Equal", 0, 2))
sketch8.addConstraint(Sketcher.Constraint("Equal", 1, 3))
sketch8.addConstraint(Sketcher.Constraint("Symmetric", 0, 3, 2, 3, -1, 1))
sketch8.addConstraint(Sketcher.Constraint("PointOnObject", 0, 3, -1))
sketch8.addConstraint(Sketcher.Constraint("Diameter", 0, Q("5 mm")))
sketch8.addConstraint(Sketcher.Constraint("Diameter", 1, Q("2 mm")))
sketch8.addConstraint(Sketcher.Constraint("DistanceX", -1, 1, 0, 3, Q("10 mm")))
sketch8.setExpression("Constraints[6]", "Params.sketch8_diameter")
sketch8.setExpression("Constraints[7]", "Params.sketch8_diameter2")
pad6 = body.newObject("PartDesign::Pad", "Pad005")
pad6.Profile = sketch8
pad6.setExpression("Length", "Params.pad6_length")
doc.recompute()

fillet3 = body.newObject("PartDesign::Fillet", "Fillet002")
fillet3.Base = (pad6, edges_at(pad6, [(10, 22.5, -2.5), (-10, 22.5, -2.5)]))
fillet3.setExpression("Radius", "Params.fillet3_radius")
doc.recompute()

fillet4 = body.newObject("PartDesign::Fillet", "Fillet003")
fillet4.Base = (fillet3, edges_at(fillet3, [
    (32, 23.25, -19.75),
    (32, 23.25, 19.75),
    (-22, 23.25, -17.5),
    (-22, 23.25, 17.5),
]))
fillet4.setExpression("Radius", "Params.fillet4_radius")

sketch9 = body.newObject("Sketcher::SketchObject", "Sketch008")
sketch9.AttachmentSupport = (doc.getObject("XZ_Plane"), [""])
sketch9.MapMode = "FlatFace"
sketch9.AttachmentOffset = App.Placement(App.Vector(0, 0, -22.5), App.Rotation())
sketch9.addGeometry(Part.LineSegment(App.Vector(14, 19.75, 0), App.Vector(14, 12.75, 0)), False)
sketch9.addGeometry(Part.LineSegment(App.Vector(14, 12.75, 0), App.Vector(20, 12.75, 0)), False)
sketch9.addGeometry(Part.LineSegment(App.Vector(20, 12.75, 0), App.Vector(20, 19.75, 0)), False)
sketch9.addGeometry(Part.LineSegment(App.Vector(20, 19.75, 0), App.Vector(14, 19.75, 0)), False)
sketch9.addGeometry(Part.LineSegment(App.Vector(14, -12.75, 0), App.Vector(14, -19.75, 0)), False)
sketch9.addGeometry(Part.LineSegment(App.Vector(14, -19.75, 0), App.Vector(20, -19.75, 0)), False)
sketch9.addGeometry(Part.LineSegment(App.Vector(20, -19.75, 0), App.Vector(20, -12.75, 0)), False)
sketch9.addGeometry(Part.LineSegment(App.Vector(20, -12.75, 0), App.Vector(14, -12.75, 0)), False)
sketch9.addGeometry(Part.LineSegment(App.Vector(-20, -12.75, 0), App.Vector(-20, -19.75, 0)), False)
sketch9.addGeometry(Part.LineSegment(App.Vector(-20, -19.75, 0), App.Vector(-14, -19.75, 0)), False)
sketch9.addGeometry(Part.LineSegment(App.Vector(-14, -19.75, 0), App.Vector(-14, -12.75, 0)), False)
sketch9.addGeometry(Part.LineSegment(App.Vector(-14, -12.75, 0), App.Vector(-20, -12.75, 0)), False)
sketch9.addGeometry(Part.LineSegment(App.Vector(-20, 19.75, 0), App.Vector(-20, 12.75, 0)), False)
sketch9.addGeometry(Part.LineSegment(App.Vector(-20, 12.75, 0), App.Vector(-14, 12.75, 0)), False)
sketch9.addGeometry(Part.LineSegment(App.Vector(-14, 12.75, 0), App.Vector(-14, 19.75, 0)), False)
sketch9.addGeometry(Part.LineSegment(App.Vector(-14, 19.75, 0), App.Vector(-20, 19.75, 0)), False)
sketch9.addConstraint(Sketcher.Constraint("Coincident", 0, 2, 1, 1))
sketch9.addConstraint(Sketcher.Constraint("Coincident", 1, 2, 2, 1))
sketch9.addConstraint(Sketcher.Constraint("Coincident", 2, 2, 3, 1))
sketch9.addConstraint(Sketcher.Constraint("Coincident", 3, 2, 0, 1))
sketch9.addConstraint(Sketcher.Constraint("Coincident", 4, 2, 5, 1))
sketch9.addConstraint(Sketcher.Constraint("Coincident", 5, 2, 6, 1))
sketch9.addConstraint(Sketcher.Constraint("Coincident", 6, 2, 7, 1))
sketch9.addConstraint(Sketcher.Constraint("Coincident", 7, 2, 4, 1))
sketch9.addConstraint(Sketcher.Constraint("Coincident", 8, 2, 9, 1))
sketch9.addConstraint(Sketcher.Constraint("Coincident", 9, 2, 10, 1))
sketch9.addConstraint(Sketcher.Constraint("Coincident", 10, 2, 11, 1))
sketch9.addConstraint(Sketcher.Constraint("Coincident", 11, 2, 8, 1))
sketch9.addConstraint(Sketcher.Constraint("Coincident", 12, 2, 13, 1))
sketch9.addConstraint(Sketcher.Constraint("Coincident", 13, 2, 14, 1))
sketch9.addConstraint(Sketcher.Constraint("Coincident", 14, 2, 15, 1))
sketch9.addConstraint(Sketcher.Constraint("Coincident", 15, 2, 12, 1))
sketch9.addConstraint(Sketcher.Constraint("Vertical", 0))
sketch9.addConstraint(Sketcher.Constraint("Horizontal", 1))
sketch9.addConstraint(Sketcher.Constraint("Vertical", 2))
sketch9.addConstraint(Sketcher.Constraint("Horizontal", 3))
sketch9.addConstraint(Sketcher.Constraint("Vertical", 4))
sketch9.addConstraint(Sketcher.Constraint("Horizontal", 5))
sketch9.addConstraint(Sketcher.Constraint("Vertical", 6))
sketch9.addConstraint(Sketcher.Constraint("Horizontal", 7))
sketch9.addConstraint(Sketcher.Constraint("Vertical", 8))
sketch9.addConstraint(Sketcher.Constraint("Horizontal", 9))
sketch9.addConstraint(Sketcher.Constraint("Vertical", 10))
sketch9.addConstraint(Sketcher.Constraint("Horizontal", 11))
sketch9.addConstraint(Sketcher.Constraint("Vertical", 12))
sketch9.addConstraint(Sketcher.Constraint("Horizontal", 13))
sketch9.addConstraint(Sketcher.Constraint("Vertical", 14))
sketch9.addConstraint(Sketcher.Constraint("Horizontal", 15))
sketch9.addConstraint(Sketcher.Constraint("Symmetric", 2, 2, 8, 2, -1, 1))
sketch9.addConstraint(Sketcher.Constraint("Symmetric", 0, 2, 10, 2, -1, 1))
sketch9.addConstraint(Sketcher.Constraint("Symmetric", 6, 2, 12, 2, -1, 1))
sketch9.addConstraint(Sketcher.Constraint("Symmetric", 4, 2, 14, 2, -1, 1))
sketch9.addConstraint(Sketcher.Constraint("Symmetric", 5, 2, 8, 2, -2))
sketch9.addConstraint(Sketcher.Constraint("Symmetric", 7, 2, 10, 2, -2))
sketch9.addConstraint(Sketcher.Constraint("DistanceX", 1, 1, 1, 2, Q("6 mm")))
sketch9.addConstraint(Sketcher.Constraint("DistanceY", 0, 2, 0, 1, Q("7 mm")))
sketch9.addConstraint(Sketcher.Constraint("DistanceX", -1, 1, 0, 2, Q("14 mm")))
sketch9.addConstraint(Sketcher.Constraint("DistanceY", 4, 2, 0, 2, Q("32.5 mm")))
sketch9.setExpression("Constraints[38]", "Params.sketch9_width")
sketch9.setExpression("Constraints[39]", "Params.sketch9_height")
pad7 = body.newObject("PartDesign::Pad", "Pad006")
pad7.Profile = sketch9
pad7.setExpression("Length", "Params.pad7_length")

sketch10 = body.newObject("Sketcher::SketchObject", "Sketch009")
sketch10.AttachmentSupport = (doc.getObject("XZ_Plane"), [""])
sketch10.MapMode = "FlatFace"
sketch10.AttachmentOffset = App.Placement(App.Vector(0, 0, -20), App.Rotation())
sketch10.addGeometry(Part.Circle(App.Vector(16, 19.75, 0), App.Vector(0, 0, 1), 1.2), False)
sketch10.addGeometry(Part.Circle(App.Vector(-16, 19.75, 0), App.Vector(0, 0, 1), 1.2), False)
sketch10.addGeometry(Part.Circle(App.Vector(-16, -19.75, 0), App.Vector(0, 0, 1), 1.2), False)
sketch10.addGeometry(Part.Circle(App.Vector(16, -19.75, 0), App.Vector(0, 0, 1), 1.2), False)
sketch10.addConstraint(Sketcher.Constraint("Equal", 0, 1))
sketch10.addConstraint(Sketcher.Constraint("Equal", 1, 2))
sketch10.addConstraint(Sketcher.Constraint("Equal", 2, 3))
sketch10.addConstraint(Sketcher.Constraint("Symmetric", 0, 3, 2, 3, -1, 1))
sketch10.addConstraint(Sketcher.Constraint("Symmetric", 1, 3, 3, 3, -1, 1))
sketch10.addConstraint(Sketcher.Constraint("Symmetric", 0, 3, 1, 3, -2))
sketch10.addConstraint(Sketcher.Constraint("Diameter", 0, Q("2.4 mm")))
sketch10.addConstraint(Sketcher.Constraint("DistanceX", -1, 1, 0, 3, Q("16 mm")))
sketch10.addConstraint(Sketcher.Constraint("DistanceY", 2, 3, 1, 3, Q("39.5 mm")))
sketch10.setExpression("Constraints[6]", "Params.sketch10_diameter")
pocket3 = body.newObject("PartDesign::Pocket", "Pocket002")
pocket3.Profile = sketch10
pocket3.Type = "ThroughAll"

sketch11 = body.newObject("Sketcher::SketchObject", "Sketch010")
sketch11.AttachmentSupport = (doc.getObject("XZ_Plane"), [""])
sketch11.MapMode = "FlatFace"
sketch11.AttachmentOffset = App.Placement(App.Vector(0, 0, -22.5), App.Rotation())
sketch11.addGeometry(Part.LineSegment(App.Vector(14, 12.75, 0), App.Vector(14, 16.75, 0)), False)
sketch11.addGeometry(Part.ArcOfCircle(Part.Circle(App.Vector(12, 16.75, 0), App.Vector(0, 0, 1), 2), math.radians(-90), math.radians(0)), False)
sketch11.addGeometry(Part.LineSegment(App.Vector(12, 14.75, 0), App.Vector(-12, 14.75, 0)), False)
sketch11.addGeometry(Part.ArcOfCircle(Part.Circle(App.Vector(-12, 16.75, 0), App.Vector(0, 0, 1), 2), math.radians(-180), math.radians(-90)), False)
sketch11.addGeometry(Part.LineSegment(App.Vector(-14, 16.75, 0), App.Vector(-14, 12.75, 0)), False)
sketch11.addGeometry(Part.LineSegment(App.Vector(-14, 12.75, 0), App.Vector(14, 12.75, 0)), False)
sketch11.addGeometry(Part.LineSegment(App.Vector(14, -12.75, 0), App.Vector(-14, -12.75, 0)), False)
sketch11.addGeometry(Part.LineSegment(App.Vector(-14, -12.75, 0), App.Vector(-14, -16.75, 0)), False)
sketch11.addGeometry(Part.ArcOfCircle(Part.Circle(App.Vector(-12, -16.75, 0), App.Vector(0, 0, 1), 2), math.radians(90), math.radians(180)), False)
sketch11.addGeometry(Part.LineSegment(App.Vector(-12, -14.75, 0), App.Vector(12, -14.75, 0)), False)
sketch11.addGeometry(Part.ArcOfCircle(Part.Circle(App.Vector(12, -16.75, 0), App.Vector(0, 0, 1), 2), math.radians(0), math.radians(90)), False)
sketch11.addGeometry(Part.LineSegment(App.Vector(14, -16.75, 0), App.Vector(14, -12.75, 0)), False)
sketch11.addConstraint(Sketcher.Constraint("Tangent", 0, 2, 1, 2))
sketch11.addConstraint(Sketcher.Constraint("Tangent", 1, 1, 2, 1))
sketch11.addConstraint(Sketcher.Constraint("Tangent", 2, 2, 3, 2))
sketch11.addConstraint(Sketcher.Constraint("Tangent", 3, 1, 4, 1))
sketch11.addConstraint(Sketcher.Constraint("Coincident", 4, 2, 5, 1))
sketch11.addConstraint(Sketcher.Constraint("Coincident", 5, 2, 0, 1))
sketch11.addConstraint(Sketcher.Constraint("Coincident", 6, 2, 7, 1))
sketch11.addConstraint(Sketcher.Constraint("Tangent", 7, 2, 8, 2))
sketch11.addConstraint(Sketcher.Constraint("Tangent", 8, 1, 9, 1))
sketch11.addConstraint(Sketcher.Constraint("Tangent", 9, 2, 10, 2))
sketch11.addConstraint(Sketcher.Constraint("Tangent", 10, 1, 11, 1))
sketch11.addConstraint(Sketcher.Constraint("Coincident", 11, 2, 6, 1))
sketch11.addConstraint(Sketcher.Constraint("Vertical", 0))
sketch11.addConstraint(Sketcher.Constraint("Horizontal", 2))
sketch11.addConstraint(Sketcher.Constraint("Vertical", 4))
sketch11.addConstraint(Sketcher.Constraint("Horizontal", 5))
sketch11.addConstraint(Sketcher.Constraint("Horizontal", 6))
sketch11.addConstraint(Sketcher.Constraint("Vertical", 7))
sketch11.addConstraint(Sketcher.Constraint("Horizontal", 9))
sketch11.addConstraint(Sketcher.Constraint("Vertical", 11))
sketch11.addConstraint(Sketcher.Constraint("Equal", 1, 3))
sketch11.addConstraint(Sketcher.Constraint("Equal", 3, 8))
sketch11.addConstraint(Sketcher.Constraint("Equal", 8, 10))
sketch11.addConstraint(Sketcher.Constraint("Symmetric", 1, 3, 8, 3, -1, 1))
sketch11.addConstraint(Sketcher.Constraint("Symmetric", 4, 2, 11, 2, -1, 1))
sketch11.addConstraint(Sketcher.Constraint("Vertical", 3, 3, 8, 3))
sketch11.addConstraint(Sketcher.Constraint("Radius", 1, Q("2 mm")))
sketch11.addConstraint(Sketcher.Constraint("DistanceX", 2, 2, 2, 1, Q("24 mm")))
sketch11.addConstraint(Sketcher.Constraint("DistanceY", 0, 1, 0, 2, Q("4 mm")))
sketch11.addConstraint(Sketcher.Constraint("DistanceY", 8, 3, 3, 3, Q("33.5 mm")))
sketch11.setExpression("Constraints[26]", "Params.sketch11_radius")
sketch11.setExpression("Constraints[27]", "Params.sketch11_width")
sketch11.setExpression("Constraints[28]", "Params.sketch11_height")
pad8 = body.newObject("PartDesign::Pad", "Pad007")
pad8.Profile = sketch11
pad8.setExpression("Length", "Params.pad8_length")
doc.recompute()

fillet5 = body.newObject("PartDesign::Fillet", "Fillet004")
fillet5.Base = (pad8, edges_at(pad8, [
    (20, 21.25, 12.75),
    (20, 21.25, -12.75),
    (-20, 21.25, -12.75),
    (-20, 21.25, 12.75),
]))
fillet5.setExpression("Radius", "Params.fillet5_radius")

sketch12 = body.newObject("Sketcher::SketchObject", "Sketch011")
sketch12.AttachmentSupport = (doc.getObject("XY_Plane"), [""])
sketch12.MapMode = "FlatFace"
sketch12.AttachmentOffset = App.Placement(App.Vector(0, 0, 19.75), App.Rotation())
sketch12.addGeometry(Part.LineSegment(App.Vector(-26.5, 17, 0), App.Vector(-26.5, 15.5, 0)), False)
sketch12.addGeometry(Part.LineSegment(App.Vector(-26.5, 15.5, 0), App.Vector(-25, 15.5, 0)), False)
sketch12.addGeometry(Part.LineSegment(App.Vector(-25, 15.5, 0), App.Vector(-25, 17, 0)), False)
sketch12.addGeometry(Part.LineSegment(App.Vector(-25, 17, 0), App.Vector(-26.5, 17, 0)), False)
sketch12.addConstraint(Sketcher.Constraint("Coincident", 0, 2, 1, 1))
sketch12.addConstraint(Sketcher.Constraint("Coincident", 1, 2, 2, 1))
sketch12.addConstraint(Sketcher.Constraint("Coincident", 2, 2, 3, 1))
sketch12.addConstraint(Sketcher.Constraint("Coincident", 3, 2, 0, 1))
sketch12.addConstraint(Sketcher.Constraint("Vertical", 0))
sketch12.addConstraint(Sketcher.Constraint("Horizontal", 1))
sketch12.addConstraint(Sketcher.Constraint("Vertical", 2))
sketch12.addConstraint(Sketcher.Constraint("Horizontal", 3))
sketch12.addConstraint(Sketcher.Constraint("Equal", 3, 0))
sketch12.addConstraint(Sketcher.Constraint("DistanceX", 1, 1, 1, 2, Q("1.5 mm")))
sketch12.addConstraint(Sketcher.Constraint("DistanceX", 1, 2, -1, 1, Q("25 mm")))
sketch12.addConstraint(Sketcher.Constraint("DistanceY", -1, 1, 2, 2, Q("17 mm")))
sketch12.setExpression("Constraints[9]", "Params.sketch12_width")
pad9 = body.newObject("PartDesign::Pad", "Pad008")
pad9.Profile = sketch12
pad9.setExpression("Length", "Params.pad9_length")

sketch13 = body.newObject("Sketcher::SketchObject", "Sketch012")
sketch13.AttachmentSupport = (doc.getObject("XY_Plane"), [""])
sketch13.MapMode = "FlatFace"
sketch13.AttachmentOffset = App.Placement(App.Vector(0, 0, -19.75), App.Rotation())
sketch13.addGeometry(Part.LineSegment(App.Vector(-25, 17, 0), App.Vector(-25, 15.5, 0)), False)
sketch13.addGeometry(Part.LineSegment(App.Vector(-25, 15.5, 0), App.Vector(-26.5, 15.5, 0)), False)
sketch13.addGeometry(Part.LineSegment(App.Vector(-26.5, 15.5, 0), App.Vector(-26.5, 17, 0)), False)
sketch13.addGeometry(Part.LineSegment(App.Vector(-26.5, 17, 0), App.Vector(-25, 17, 0)), False)
sketch13.addConstraint(Sketcher.Constraint("Coincident", 0, 2, 1, 1))
sketch13.addConstraint(Sketcher.Constraint("Coincident", 1, 2, 2, 1))
sketch13.addConstraint(Sketcher.Constraint("Coincident", 2, 2, 3, 1))
sketch13.addConstraint(Sketcher.Constraint("Coincident", 3, 2, 0, 1))
sketch13.addConstraint(Sketcher.Constraint("Vertical", 0))
sketch13.addConstraint(Sketcher.Constraint("Horizontal", 1))
sketch13.addConstraint(Sketcher.Constraint("Vertical", 2))
sketch13.addConstraint(Sketcher.Constraint("Horizontal", 3))
sketch13.addConstraint(Sketcher.Constraint("Equal", 3, 0))
sketch13.addConstraint(Sketcher.Constraint("DistanceX", 1, 2, 1, 1, Q("1.5 mm")))
sketch13.addConstraint(Sketcher.Constraint("DistanceX", 0, 2, -1, 1, Q("25 mm")))
sketch13.addConstraint(Sketcher.Constraint("DistanceY", -1, 1, 2, 2, Q("17 mm")))
sketch13.setExpression("Constraints[9]", "Params.sketch13_width")
pad10 = body.newObject("PartDesign::Pad", "Pad009")
pad10.Profile = sketch13
pad10.setExpression("Length", "Params.pad10_length")
pad10.Reversed = True

doc.recompute()
